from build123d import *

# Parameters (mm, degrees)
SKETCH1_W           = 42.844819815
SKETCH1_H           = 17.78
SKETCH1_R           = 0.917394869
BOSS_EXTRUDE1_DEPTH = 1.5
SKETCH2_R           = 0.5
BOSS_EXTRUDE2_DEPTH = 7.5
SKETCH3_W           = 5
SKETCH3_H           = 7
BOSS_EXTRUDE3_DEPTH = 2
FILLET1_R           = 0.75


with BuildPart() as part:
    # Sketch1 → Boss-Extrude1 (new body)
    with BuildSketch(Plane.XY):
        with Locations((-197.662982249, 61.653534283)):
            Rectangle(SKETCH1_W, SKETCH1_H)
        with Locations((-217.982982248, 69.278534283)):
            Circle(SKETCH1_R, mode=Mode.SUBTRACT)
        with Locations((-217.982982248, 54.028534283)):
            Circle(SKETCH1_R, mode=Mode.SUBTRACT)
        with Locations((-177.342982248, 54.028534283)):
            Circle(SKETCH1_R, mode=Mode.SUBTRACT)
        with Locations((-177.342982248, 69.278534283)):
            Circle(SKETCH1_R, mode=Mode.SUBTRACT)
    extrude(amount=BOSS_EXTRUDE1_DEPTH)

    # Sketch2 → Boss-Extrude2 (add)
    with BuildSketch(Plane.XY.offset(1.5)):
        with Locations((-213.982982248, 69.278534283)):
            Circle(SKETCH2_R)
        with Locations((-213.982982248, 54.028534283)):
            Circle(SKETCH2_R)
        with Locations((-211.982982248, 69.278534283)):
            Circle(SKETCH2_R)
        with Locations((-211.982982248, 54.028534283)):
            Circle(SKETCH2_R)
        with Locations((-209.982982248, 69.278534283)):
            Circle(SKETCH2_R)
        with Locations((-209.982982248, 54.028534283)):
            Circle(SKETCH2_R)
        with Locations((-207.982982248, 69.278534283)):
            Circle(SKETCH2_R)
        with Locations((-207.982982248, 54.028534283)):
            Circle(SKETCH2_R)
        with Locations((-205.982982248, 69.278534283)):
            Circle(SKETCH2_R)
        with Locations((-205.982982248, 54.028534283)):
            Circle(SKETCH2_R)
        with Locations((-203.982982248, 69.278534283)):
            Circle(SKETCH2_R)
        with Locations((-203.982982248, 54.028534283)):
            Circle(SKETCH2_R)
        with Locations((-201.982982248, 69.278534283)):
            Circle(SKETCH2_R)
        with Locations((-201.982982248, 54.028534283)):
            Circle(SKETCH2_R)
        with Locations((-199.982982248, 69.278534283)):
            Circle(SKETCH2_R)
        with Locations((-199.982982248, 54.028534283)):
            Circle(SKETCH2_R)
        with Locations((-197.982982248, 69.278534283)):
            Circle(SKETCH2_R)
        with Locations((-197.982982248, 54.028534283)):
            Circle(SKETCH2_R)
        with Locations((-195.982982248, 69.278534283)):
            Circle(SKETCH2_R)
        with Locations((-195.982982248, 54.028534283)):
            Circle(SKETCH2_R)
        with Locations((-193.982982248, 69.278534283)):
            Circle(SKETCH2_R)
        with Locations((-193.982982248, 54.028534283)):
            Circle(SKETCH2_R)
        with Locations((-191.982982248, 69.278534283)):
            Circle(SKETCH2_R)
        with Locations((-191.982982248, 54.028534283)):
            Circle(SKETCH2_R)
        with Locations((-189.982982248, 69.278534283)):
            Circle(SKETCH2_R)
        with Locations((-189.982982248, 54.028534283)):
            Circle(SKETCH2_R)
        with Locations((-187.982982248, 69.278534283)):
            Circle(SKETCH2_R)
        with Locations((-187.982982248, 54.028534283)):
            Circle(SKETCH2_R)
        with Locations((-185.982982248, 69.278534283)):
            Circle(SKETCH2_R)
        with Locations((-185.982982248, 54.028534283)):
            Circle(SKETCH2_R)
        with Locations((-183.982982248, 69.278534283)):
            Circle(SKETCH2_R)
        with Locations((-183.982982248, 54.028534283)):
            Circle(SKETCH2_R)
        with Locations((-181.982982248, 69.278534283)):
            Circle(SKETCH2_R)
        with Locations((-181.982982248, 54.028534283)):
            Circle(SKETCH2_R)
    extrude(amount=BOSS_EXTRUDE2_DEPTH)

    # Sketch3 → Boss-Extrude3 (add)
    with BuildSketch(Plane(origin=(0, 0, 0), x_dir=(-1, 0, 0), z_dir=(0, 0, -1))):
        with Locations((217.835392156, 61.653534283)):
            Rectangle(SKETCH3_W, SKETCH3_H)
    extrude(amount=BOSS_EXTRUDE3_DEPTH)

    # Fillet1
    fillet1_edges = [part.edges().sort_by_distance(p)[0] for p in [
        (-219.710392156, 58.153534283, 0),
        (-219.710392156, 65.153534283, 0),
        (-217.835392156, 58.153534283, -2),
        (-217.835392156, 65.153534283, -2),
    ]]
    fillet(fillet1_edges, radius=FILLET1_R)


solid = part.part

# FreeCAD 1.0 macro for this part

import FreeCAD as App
import Part
import Sketcher

V = App.Vector
Q = App.Units.Quantity


def edges_at(feature, points):
    """Names of the edges that pass closest to the given points."""
    edges = feature.Shape.Edges
    near = lambda p: min(range(len(edges)), key=lambda i: edges[i].distToShape(Part.Vertex(*p))[0])
    return sorted({f"Edge{near(p) + 1}" for p in points})

doc = App.newDocument("Part")
body = doc.addObject("PartDesign::Body", "Body")

# Sketch on XY plane
sketch1 = body.newObject("Sketcher::SketchObject", "Sketch")
sketch1.AttachmentSupport = (doc.getObject("XY_Plane"), [""])
sketch1.MapMode = "FlatFace"
sketch1.addGeometry(Part.LineSegment(V(-219.085392, 70.543534, 0), V(-219.085392, 52.763534, 0)), False)
sketch1.addGeometry(Part.LineSegment(V(-219.085392, 52.763534, 0), V(-176.240572, 52.763534, 0)), False)
sketch1.addGeometry(Part.LineSegment(V(-176.240572, 52.763534, 0), V(-176.240572, 70.543534, 0)), False)
sketch1.addGeometry(Part.LineSegment(V(-176.240572, 70.543534, 0), V(-219.085392, 70.543534, 0)), False)
sketch1.addGeometry(Part.Circle(V(-217.982982, 54.028534, 0), V(0, 0, 1), 0.917395), False)
sketch1.addGeometry(Part.Circle(V(-177.342982, 54.028534, 0), V(0, 0, 1), 0.917395), False)
sketch1.addGeometry(Part.Circle(V(-217.982982, 69.278534, 0), V(0, 0, 1), 0.917395), False)
sketch1.addGeometry(Part.Circle(V(-177.342982, 69.278534, 0), V(0, 0, 1), 0.917395), False)
sketch1.addConstraint(Sketcher.Constraint("Coincident", 0, 2, 1, 1))
sketch1.addConstraint(Sketcher.Constraint("Coincident", 1, 2, 2, 1))
sketch1.addConstraint(Sketcher.Constraint("Coincident", 2, 2, 3, 1))
sketch1.addConstraint(Sketcher.Constraint("Coincident", 3, 2, 0, 1))
sketch1.addConstraint(Sketcher.Constraint("Vertical", 0))
sketch1.addConstraint(Sketcher.Constraint("Horizontal", 1))
sketch1.addConstraint(Sketcher.Constraint("Vertical", 2))
sketch1.addConstraint(Sketcher.Constraint("Horizontal", 3))
sketch1.addConstraint(Sketcher.Constraint("Equal", 4, 5))
sketch1.addConstraint(Sketcher.Constraint("Equal", 5, 6))
sketch1.addConstraint(Sketcher.Constraint("Equal", 6, 7))
sketch1.addConstraint(Sketcher.Constraint("Horizontal", 4, 3, 5, 3))
sketch1.addConstraint(Sketcher.Constraint("Horizontal", 6, 3, 7, 3))
sketch1.addConstraint(Sketcher.Constraint("Vertical", 4, 3, 6, 3))
sketch1.addConstraint(Sketcher.Constraint("Vertical", 5, 3, 7, 3))
sketch1.addConstraint(Sketcher.Constraint("DistanceY", 0, 2, 0, 1, Q("17.78 mm")))
sketch1.addConstraint(Sketcher.Constraint("Diameter", 4, Q("1.83479 mm")))
sketch1.addConstraint(Sketcher.Constraint("DistanceX", 4, 3, 5, 3, Q("40.64 mm")))
sketch1.addConstraint(Sketcher.Constraint("DistanceY", 4, 3, 6, 3, Q("15.25 mm")))
sketch1.addConstraint(Sketcher.Constraint("DistanceY", 0, 2, 4, 3, Q("1.265 mm")))
sketch1.addConstraint(Sketcher.Constraint("DistanceX", 1, 1, 1, 2, Q("42.84482 mm")))
sketch1.addConstraint(Sketcher.Constraint("DistanceX", 0, 2, 4, 3, Q("1.10241 mm")))
sketch1.addConstraint(Sketcher.Constraint("DistanceX", 4, 3, -1, 1, Q("217.982982 mm")))
sketch1.addConstraint(Sketcher.Constraint("DistanceY", -1, 1, 4, 3, Q("54.028534 mm")))
pad1 = body.newObject("PartDesign::Pad", "Pad")
pad1.Profile = sketch1
pad1.Length = 1.5

# Sketch on XY plane
sketch2 = body.newObject("Sketcher::SketchObject", "Sketch001")
sketch2.AttachmentSupport = (doc.getObject("XY_Plane"), [""])
sketch2.MapMode = "FlatFace"
sketch2.AttachmentOffset = App.Placement(V(0, 0, 1.5), App.Rotation())
sketch2.addGeometry(Part.Circle(V(-213.982982, 69.278534, 0), V(0, 0, 1), 0.5), False)
sketch2.addGeometry(Part.Circle(V(-213.982982, 54.028534, 0), V(0, 0, 1), 0.5), False)
sketch2.addGeometry(Part.Circle(V(-211.982982, 69.278534, 0), V(0, 0, 1), 0.5), False)
sketch2.addGeometry(Part.Circle(V(-211.982982, 54.028534, 0), V(0, 0, 1), 0.5), False)
sketch2.addGeometry(Part.Circle(V(-209.982982, 69.278534, 0), V(0, 0, 1), 0.5), False)
sketch2.addGeometry(Part.Circle(V(-209.982982, 54.028534, 0), V(0, 0, 1), 0.5), False)
sketch2.addGeometry(Part.Circle(V(-207.982982, 69.278534, 0), V(0, 0, 1), 0.5), False)
sketch2.addGeometry(Part.Circle(V(-207.982982, 54.028534, 0), V(0, 0, 1), 0.5), False)
sketch2.addGeometry(Part.Circle(V(-205.982982, 69.278534, 0), V(0, 0, 1), 0.5), False)
sketch2.addGeometry(Part.Circle(V(-205.982982, 54.028534, 0), V(0, 0, 1), 0.5), False)
sketch2.addGeometry(Part.Circle(V(-203.982982, 69.278534, 0), V(0, 0, 1), 0.5), False)
sketch2.addGeometry(Part.Circle(V(-203.982982, 54.028534, 0), V(0, 0, 1), 0.5), False)
sketch2.addGeometry(Part.Circle(V(-201.982982, 69.278534, 0), V(0, 0, 1), 0.5), False)
sketch2.addGeometry(Part.Circle(V(-201.982982, 54.028534, 0), V(0, 0, 1), 0.5), False)
sketch2.addGeometry(Part.Circle(V(-199.982982, 69.278534, 0), V(0, 0, 1), 0.5), False)
sketch2.addGeometry(Part.Circle(V(-199.982982, 54.028534, 0), V(0, 0, 1), 0.5), False)
sketch2.addGeometry(Part.Circle(V(-197.982982, 69.278534, 0), V(0, 0, 1), 0.5), False)
sketch2.addGeometry(Part.Circle(V(-197.982982, 54.028534, 0), V(0, 0, 1), 0.5), False)
sketch2.addGeometry(Part.Circle(V(-195.982982, 69.278534, 0), V(0, 0, 1), 0.5), False)
sketch2.addGeometry(Part.Circle(V(-195.982982, 54.028534, 0), V(0, 0, 1), 0.5), False)
sketch2.addGeometry(Part.Circle(V(-193.982982, 69.278534, 0), V(0, 0, 1), 0.5), False)
sketch2.addGeometry(Part.Circle(V(-193.982982, 54.028534, 0), V(0, 0, 1), 0.5), False)
sketch2.addGeometry(Part.Circle(V(-191.982982, 69.278534, 0), V(0, 0, 1), 0.5), False)
sketch2.addGeometry(Part.Circle(V(-191.982982, 54.028534, 0), V(0, 0, 1), 0.5), False)
sketch2.addGeometry(Part.Circle(V(-189.982982, 69.278534, 0), V(0, 0, 1), 0.5), False)
sketch2.addGeometry(Part.Circle(V(-189.982982, 54.028534, 0), V(0, 0, 1), 0.5), False)
sketch2.addGeometry(Part.Circle(V(-187.982982, 69.278534, 0), V(0, 0, 1), 0.5), False)
sketch2.addGeometry(Part.Circle(V(-187.982982, 54.028534, 0), V(0, 0, 1), 0.5), False)
sketch2.addGeometry(Part.Circle(V(-185.982982, 69.278534, 0), V(0, 0, 1), 0.5), False)
sketch2.addGeometry(Part.Circle(V(-185.982982, 54.028534, 0), V(0, 0, 1), 0.5), False)
sketch2.addGeometry(Part.Circle(V(-183.982982, 69.278534, 0), V(0, 0, 1), 0.5), False)
sketch2.addGeometry(Part.Circle(V(-183.982982, 54.028534, 0), V(0, 0, 1), 0.5), False)
sketch2.addGeometry(Part.Circle(V(-181.982982, 69.278534, 0), V(0, 0, 1), 0.5), False)
sketch2.addGeometry(Part.Circle(V(-181.982982, 54.028534, 0), V(0, 0, 1), 0.5), False)
sketch2.addConstraint(Sketcher.Constraint("Equal", 0, 1))
sketch2.addConstraint(Sketcher.Constraint("Equal", 1, 2))
sketch2.addConstraint(Sketcher.Constraint("Equal", 2, 3))
sketch2.addConstraint(Sketcher.Constraint("Equal", 3, 4))
sketch2.addConstraint(Sketcher.Constraint("Equal", 4, 5))
sketch2.addConstraint(Sketcher.Constraint("Equal", 5, 6))
sketch2.addConstraint(Sketcher.Constraint("Equal", 6, 7))
sketch2.addConstraint(Sketcher.Constraint("Equal", 7, 8))
sketch2.addConstraint(Sketcher.Constraint("Equal", 8, 9))
sketch2.addConstraint(Sketcher.Constraint("Equal", 9, 10))
sketch2.addConstraint(Sketcher.Constraint("Equal", 10, 11))
sketch2.addConstraint(Sketcher.Constraint("Equal", 11, 12))
sketch2.addConstraint(Sketcher.Constraint("Equal", 12, 13))
sketch2.addConstraint(Sketcher.Constraint("Equal", 13, 14))
sketch2.addConstraint(Sketcher.Constraint("Equal", 14, 15))
sketch2.addConstraint(Sketcher.Constraint("Equal", 15, 16))
sketch2.addConstraint(Sketcher.Constraint("Equal", 16, 17))
sketch2.addConstraint(Sketcher.Constraint("Equal", 17, 18))
sketch2.addConstraint(Sketcher.Constraint("Equal", 18, 19))
sketch2.addConstraint(Sketcher.Constraint("Equal", 19, 20))
sketch2.addConstraint(Sketcher.Constraint("Equal", 20, 21))
sketch2.addConstraint(Sketcher.Constraint("Equal", 21, 22))
sketch2.addConstraint(Sketcher.Constraint("Equal", 22, 23))
sketch2.addConstraint(Sketcher.Constraint("Equal", 23, 24))
sketch2.addConstraint(Sketcher.Constraint("Equal", 24, 25))
sketch2.addConstraint(Sketcher.Constraint("Equal", 25, 26))
sketch2.addConstraint(Sketcher.Constraint("Equal", 26, 27))
sketch2.addConstraint(Sketcher.Constraint("Equal", 27, 28))
sketch2.addConstraint(Sketcher.Constraint("Equal", 28, 29))
sketch2.addConstraint(Sketcher.Constraint("Equal", 29, 30))
sketch2.addConstraint(Sketcher.Constraint("Equal", 30, 31))
sketch2.addConstraint(Sketcher.Constraint("Equal", 31, 32))
sketch2.addConstraint(Sketcher.Constraint("Equal", 32, 33))
sketch2.addConstraint(Sketcher.Constraint("Horizontal", 0, 3, 2, 3))
sketch2.addConstraint(Sketcher.Constraint("Horizontal", 1, 3, 3, 3))
sketch2.addConstraint(Sketcher.Constraint("Horizontal", 2, 3, 4, 3))
sketch2.addConstraint(Sketcher.Constraint("Horizontal", 3, 3, 5, 3))
sketch2.addConstraint(Sketcher.Constraint("Horizontal", 4, 3, 6, 3))
sketch2.addConstraint(Sketcher.Constraint("Horizontal", 5, 3, 7, 3))
sketch2.addConstraint(Sketcher.Constraint("Horizontal", 6, 3, 8, 3))
sketch2.addConstraint(Sketcher.Constraint("Horizontal", 7, 3, 9, 3))
sketch2.addConstraint(Sketcher.Constraint("Horizontal", 8, 3, 10, 3))
sketch2.addConstraint(Sketcher.Constraint("Horizontal", 9, 3, 11, 3))
sketch2.addConstraint(Sketcher.Constraint("Horizontal", 10, 3, 12, 3))
sketch2.addConstraint(Sketcher.Constraint("Horizontal", 11, 3, 13, 3))
sketch2.addConstraint(Sketcher.Constraint("Horizontal", 12, 3, 14, 3))
sketch2.addConstraint(Sketcher.Constraint("Horizontal", 13, 3, 15, 3))
sketch2.addConstraint(Sketcher.Constraint("Horizontal", 14, 3, 16, 3))
sketch2.addConstraint(Sketcher.Constraint("Horizontal", 15, 3, 17, 3))
sketch2.addConstraint(Sketcher.Constraint("Horizontal", 16, 3, 18, 3))
sketch2.addConstraint(Sketcher.Constraint("Horizontal", 17, 3, 19, 3))
sketch2.addConstraint(Sketcher.Constraint("Horizontal", 18, 3, 20, 3))
sketch2.addConstraint(Sketcher.Constraint("Horizontal", 19, 3, 21, 3))
sketch2.addConstraint(Sketcher.Constraint("Horizontal", 20, 3, 22, 3))
sketch2.addConstraint(Sketcher.Constraint("Horizontal", 21, 3, 23, 3))
sketch2.addConstraint(Sketcher.Constraint("Horizontal", 22, 3, 24, 3))
sketch2.addConstraint(Sketcher.Constraint("Horizontal", 23, 3, 25, 3))
sketch2.addConstraint(Sketcher.Constraint("Horizontal", 24, 3, 26, 3))
sketch2.addConstraint(Sketcher.Constraint("Horizontal", 25, 3, 27, 3))
sketch2.addConstraint(Sketcher.Constraint("Horizontal", 26, 3, 28, 3))
sketch2.addConstraint(Sketcher.Constraint("Horizontal", 27, 3, 29, 3))
sketch2.addConstraint(Sketcher.Constraint("Horizontal", 28, 3, 30, 3))
sketch2.addConstraint(Sketcher.Constraint("Horizontal", 29, 3, 31, 3))
sketch2.addConstraint(Sketcher.Constraint("Horizontal", 30, 3, 32, 3))
sketch2.addConstraint(Sketcher.Constraint("Horizontal", 31, 3, 33, 3))
sketch2.addConstraint(Sketcher.Constraint("Vertical", 0, 3, 1, 3))
sketch2.addConstraint(Sketcher.Constraint("Vertical", 2, 3, 3, 3))
sketch2.addConstraint(Sketcher.Constraint("Vertical", 4, 3, 5, 3))
sketch2.addConstraint(Sketcher.Constraint("Vertical", 6, 3, 7, 3))
sketch2.addConstraint(Sketcher.Constraint("Vertical", 8, 3, 9, 3))
sketch2.addConstraint(Sketcher.Constraint("Vertical", 10, 3, 11, 3))
sketch2.addConstraint(Sketcher.Constraint("Vertical", 12, 3, 13, 3))
sketch2.addConstraint(Sketcher.Constraint("Vertical", 14, 3, 15, 3))
sketch2.addConstraint(Sketcher.Constraint("Vertical", 16, 3, 17, 3))
sketch2.addConstraint(Sketcher.Constraint("Vertical", 18, 3, 19, 3))
sketch2.addConstraint(Sketcher.Constraint("Vertical", 20, 3, 21, 3))
sketch2.addConstraint(Sketcher.Constraint("Vertical", 22, 3, 23, 3))
sketch2.addConstraint(Sketcher.Constraint("Vertical", 24, 3, 25, 3))
sketch2.addConstraint(Sketcher.Constraint("Vertical", 26, 3, 27, 3))
sketch2.addConstraint(Sketcher.Constraint("Vertical", 28, 3, 29, 3))
sketch2.addConstraint(Sketcher.Constraint("Vertical", 30, 3, 31, 3))
sketch2.addConstraint(Sketcher.Constraint("Vertical", 32, 3, 33, 3))
sketch2.addConstraint(Sketcher.Constraint("Diameter", 0, Q("1 mm")))
sketch2.addConstraint(Sketcher.Constraint("DistanceX", 0, 3, 2, 3, Q("2 mm")))
sketch2.addConstraint(Sketcher.Constraint("DistanceX", 2, 3, 4, 3, Q("2 mm")))
sketch2.addConstraint(Sketcher.Constraint("DistanceX", 4, 3, 6, 3, Q("2 mm")))
sketch2.addConstraint(Sketcher.Constraint("DistanceX", 6, 3, 8, 3, Q("2 mm")))
sketch2.addConstraint(Sketcher.Constraint("DistanceX", 8, 3, 10, 3, Q("2 mm")))
sketch2.addConstraint(Sketcher.Constraint("DistanceX", 10, 3, 12, 3, Q("2 mm")))
sketch2.addConstraint(Sketcher.Constraint("DistanceX", 12, 3, 14, 3, Q("2 mm")))
sketch2.addConstraint(Sketcher.Constraint("DistanceX", 14, 3, 16, 3, Q("2 mm")))
sketch2.addConstraint(Sketcher.Constraint("DistanceX", 16, 3, 18, 3, Q("2 mm")))
sketch2.addConstraint(Sketcher.Constraint("DistanceX", 18, 3, 20, 3, Q("2 mm")))
sketch2.addConstraint(Sketcher.Constraint("DistanceX", 20, 3, 22, 3, Q("2 mm")))
sketch2.addConstraint(Sketcher.Constraint("DistanceX", 22, 3, 24, 3, Q("2 mm")))
sketch2.addConstraint(Sketcher.Constraint("DistanceX", 24, 3, 26, 3, Q("2 mm")))
sketch2.addConstraint(Sketcher.Constraint("DistanceX", 26, 3, 28, 3, Q("2 mm")))
sketch2.addConstraint(Sketcher.Constraint("DistanceX", 28, 3, 30, 3, Q("2 mm")))
sketch2.addConstraint(Sketcher.Constraint("DistanceX", 30, 3, 32, 3, Q("2 mm")))
sketch2.addConstraint(Sketcher.Constraint("DistanceY", 1, 3, 0, 3, Q("15.25 mm")))
sketch2.addConstraint(Sketcher.Constraint("DistanceX", 0, 3, -1, 1, Q("213.982982 mm")))
sketch2.addConstraint(Sketcher.Constraint("DistanceY", -1, 1, 0, 3, Q("69.278534 mm")))
pad2 = body.newObject("PartDesign::Pad", "Pad001")
pad2.Profile = sketch2
pad2.Length = 7.5

# Sketch on XY plane
sketch3 = body.newObject("Sketcher::SketchObject", "Sketch002")
sketch3.AttachmentSupport = (doc.getObject("XY_Plane"), [""])
sketch3.MapMode = "FlatFace"
sketch3.addGeometry(Part.LineSegment(V(-215.335392, 65.153534, 0), V(-215.335392, 58.153534, 0)), False)
sketch3.addGeometry(Part.LineSegment(V(-215.335392, 58.153534, 0), V(-220.335392, 58.153534, 0)), False)
sketch3.addGeometry(Part.LineSegment(V(-220.335392, 58.153534, 0), V(-220.335392, 65.153534, 0)), False)
sketch3.addGeometry(Part.LineSegment(V(-220.335392, 65.153534, 0), V(-215.335392, 65.153534, 0)), False)
sketch3.addConstraint(Sketcher.Constraint("Coincident", 0, 2, 1, 1))
sketch3.addConstraint(Sketcher.Constraint("Coincident", 1, 2, 2, 1))
sketch3.addConstraint(Sketcher.Constraint("Coincident", 2, 2, 3, 1))
sketch3.addConstraint(Sketcher.Constraint("Coincident", 3, 2, 0, 1))
sketch3.addConstraint(Sketcher.Constraint("Vertical", 0))
sketch3.addConstraint(Sketcher.Constraint("Horizontal", 1))
sketch3.addConstraint(Sketcher.Constraint("Vertical", 2))
sketch3.addConstraint(Sketcher.Constraint("Horizontal", 3))
sketch3.addConstraint(Sketcher.Constraint("DistanceX", 1, 2, 1, 1, Q("5 mm")))
sketch3.addConstraint(Sketcher.Constraint("DistanceY", 0, 2, 0, 1, Q("7 mm")))
sketch3.addConstraint(Sketcher.Constraint("DistanceX", 0, 2, -1, 1, Q("215.335392 mm")))
sketch3.addConstraint(Sketcher.Constraint("DistanceY", -1, 1, 0, 2, Q("58.153534 mm")))
pad3 = body.newObject("PartDesign::Pad", "Pad002")
pad3.Profile = sketch3
pad3.Length = 2
pad3.Reversed = True
doc.recompute()

fillet = body.newObject("PartDesign::Fillet", "Fillet")
fillet.Base = (pad3, edges_at(pad3, [
    (-219.71, 58.154, 0),
    (-219.71, 65.154, 0),
    (-217.835, 58.154, -2),
    (-217.835, 65.154, -2),
]))
fillet.Radius = 0.75

doc.recompute()
